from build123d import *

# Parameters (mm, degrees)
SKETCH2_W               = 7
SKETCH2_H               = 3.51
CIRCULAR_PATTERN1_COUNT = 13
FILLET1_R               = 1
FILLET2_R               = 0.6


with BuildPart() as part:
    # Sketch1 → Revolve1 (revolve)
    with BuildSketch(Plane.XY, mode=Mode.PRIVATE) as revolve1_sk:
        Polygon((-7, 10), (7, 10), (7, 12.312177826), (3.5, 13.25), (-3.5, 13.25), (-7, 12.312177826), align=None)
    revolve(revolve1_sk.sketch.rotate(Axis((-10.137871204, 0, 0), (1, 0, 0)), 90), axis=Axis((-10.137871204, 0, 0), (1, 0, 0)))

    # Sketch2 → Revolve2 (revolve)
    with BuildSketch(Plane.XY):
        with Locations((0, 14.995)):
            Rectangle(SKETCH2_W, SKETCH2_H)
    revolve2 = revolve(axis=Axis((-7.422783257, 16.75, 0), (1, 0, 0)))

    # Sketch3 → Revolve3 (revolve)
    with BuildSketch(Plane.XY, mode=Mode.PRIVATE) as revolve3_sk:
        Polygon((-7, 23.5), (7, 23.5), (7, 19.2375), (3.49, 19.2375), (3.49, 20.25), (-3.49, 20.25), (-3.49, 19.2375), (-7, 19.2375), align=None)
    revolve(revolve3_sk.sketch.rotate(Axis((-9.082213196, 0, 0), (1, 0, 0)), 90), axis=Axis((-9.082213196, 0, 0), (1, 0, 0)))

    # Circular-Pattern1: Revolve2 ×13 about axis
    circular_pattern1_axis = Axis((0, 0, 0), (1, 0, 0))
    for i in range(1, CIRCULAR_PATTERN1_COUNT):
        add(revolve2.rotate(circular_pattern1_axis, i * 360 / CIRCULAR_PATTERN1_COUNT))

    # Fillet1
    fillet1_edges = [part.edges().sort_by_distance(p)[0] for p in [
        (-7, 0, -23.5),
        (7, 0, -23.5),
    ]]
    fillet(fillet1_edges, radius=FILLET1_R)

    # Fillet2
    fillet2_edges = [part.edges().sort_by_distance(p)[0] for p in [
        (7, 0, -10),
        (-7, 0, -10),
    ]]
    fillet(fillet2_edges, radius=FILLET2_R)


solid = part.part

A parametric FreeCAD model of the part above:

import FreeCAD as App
import Part
import Sketcher
from FreeCAD import Vector
Q = App.Units.Quantity


def edges_at(feature, points):
    """Names of the edges that pass closest to the given points."""
    edges = feature.Shape.Edges
    near = lambda p: min(range(len(edges)), key=lambda i: edges[i].distToShape(Part.Vertex(*p))[0])
    return sorted({f"Edge{near(p) + 1}" for p in points})


def add_polygon(sketch, points):
    """Adds a closed chain of lines whose ends are joined by coincident constraints."""
    first, n = sketch.GeometryCount, len(points)
    for a, b in zip(points, points[1:] + points[:1]):
        sketch.addGeometry(Part.LineSegment(App.Vector(*a, 0), App.Vector(*b, 0)), False)
    for i in range(n):
        sketch.addConstraint(Sketcher.Constraint("Coincident", first + i, 2, first + (i + 1) % n, 1))

doc = App.newDocument("Part")
body = doc.addObject("PartDesign::Body", "Body")

# Sketch on XY plane
sketch1 = body.newObject("Sketcher::SketchObject", "Sketch")
sketch1.AttachmentSupport = (doc.getObject("XY_Plane"), [""])
sketch1.MapMode = "FlatFace"
add_polygon(sketch1, [(-7, 10), (7, 10), (7, 12.3), (3.5, 13.2), (-3.5, 13.2), (-7, 12.3)])  # lines 0-5
sketch1.addConstraint(Sketcher.Constraint("Horizontal", 0))
sketch1.addConstraint(Sketcher.Constraint("Vertical", 1))
sketch1.addConstraint(Sketcher.Constraint("Horizontal", 3))
sketch1.addConstraint(Sketcher.Constraint("Vertical", 5))
sketch1.addConstraint(Sketcher.Constraint("Symmetric", 1, 2, 4, 2, -2))
sketch1.addConstraint(Sketcher.Constraint("Equal", 2, 4))
sketch1.addConstraint(Sketcher.Constraint("DistanceX", 0, 1, 0, 2, 14.0))
sketch1.addConstraint(Sketcher.Constraint("DistanceX", 3, 2, 3, 1, 7.0))
sketch1.addConstraint(Sketcher.Constraint("Angle", 2, Q("165 deg")))
sketch1.addConstraint(Sketcher.Constraint("DistanceY", -1, 1, 0, 2, 10.0))
sketch1.addConstraint(Sketcher.Constraint("DistanceY", -1, 1, 2, 2, 13.25))
revolution = body.newObject("PartDesign::Revolution", "Revolution")
revolution.Profile = sketch1
revolution.ReferenceAxis = (sketch1, ["H_Axis"])
revolution.Angle = 360

# Sketch on XY plane
sketch2 = body.newObject("Sketcher::SketchObject", "Sketch001")
sketch2.AttachmentSupport = (doc.getObject("XY_Plane"), [""])
sketch2.MapMode = "FlatFace"
add_polygon(sketch2, [(-3.5, 16.8), (-3.5, 13.2), (3.5, 13.2), (3.5, 16.8)])  # lines 0-3
sketch2.addGeometry(Part.LineSegment(Vector(-3.5, 16.8, 0), Vector(3.5, 16.8, 0)), True)  # axis
sketch2.addConstraint(Sketcher.Constraint("Vertical", 0))
sketch2.addConstraint(Sketcher.Constraint("Horizontal", 1))
sketch2.addConstraint(Sketcher.Constraint("Vertical", 2))
sketch2.addConstraint(Sketcher.Constraint("Horizontal", 3))
sketch2.addConstraint(Sketcher.Constraint("Horizontal", 4))
sketch2.addConstraint(Sketcher.Constraint("Coincident", 4, 1, 3, 2))
sketch2.addConstraint(Sketcher.Constraint("Vertical", 1, 2, 4, 2))
sketch2.addConstraint(Sketcher.Constraint("DistanceX", 1, 1, 1, 2, 7.0))
sketch2.addConstraint(Sketcher.Constraint("DistanceY", 0, 2, 0, 1, 3.51))
sketch2.addConstraint(Sketcher.Constraint("DistanceX", 0, 2, -1, 1, 3.5))
sketch2.addConstraint(Sketcher.Constraint("DistanceY", -1, 1, 0, 2, 13.24))
revolution2 = body.newObject("PartDesign::Revolution", "Revolution001")
revolution2.Profile = sketch2
revolution2.ReferenceAxis = (sketch2, ["Axis0"])
revolution2.Angle = 360

# Sketch on XY plane
sketch3 = body.newObject("Sketcher::SketchObject", "Sketch002")
sketch3.AttachmentSupport = (doc.getObject("XY_Plane"), [""])
sketch3.MapMode = "FlatFace"
add_polygon(sketch3, [(7, 23.5), (-7, 23.5), (-7, 19.2), (-3.5, 19.2), (-3.5, 20.2), (3.5, 20.2), (3.5, 19.2), (7, 19.2)])  # lines 0-7
sketch3.addConstraint(Sketcher.Constraint("Horizontal", 0))
sketch3.addConstraint(Sketcher.Constraint("Vertical", 1))
sketch3.addConstraint(Sketcher.Constraint("Horizontal", 2))
sketch3.addConstraint(Sketcher.Constraint("Vertical", 3))
sketch3.addConstraint(Sketcher.Constraint("Horizontal", 4))
sketch3.addConstraint(Sketcher.Constraint("Vertical", 5))
sketch3.addConstraint(Sketcher.Constraint("Horizontal", 6))
sketch3.addConstraint(Sketcher.Constraint("Vertical", 7))
sketch3.addConstraint(Sketcher.Constraint("Symmetric", 2, 2, 5, 2, -2))
sketch3.addConstraint(Sketcher.Constraint("Equal", 2, 6))
sketch3.addConstraint(Sketcher.Constraint("DistanceX", 0, 2, 0, 1, 14.0))
sketch3.addConstraint(Sketcher.Constraint("DistanceX", 2, 1, 2, 2, 3.51))
sketch3.addConstraint(Sketcher.Constraint("DistanceY", -1, 1, 0, 2, 23.5))
sketch3.addConstraint(Sketcher.Constraint("DistanceY", -1, 1, 3, 2, 20.25))
sketch3.addConstraint(Sketcher.Constraint("DistanceY", 1, 2, 1, 1, 4.2625))
revolution3 = body.newObject("PartDesign::Revolution", "Revolution002")
revolution3.Profile = sketch3
revolution3.ReferenceAxis = (sketch3, ["H_Axis"])
revolution3.Angle = 360
doc.recompute()

polarpattern = body.newObject("PartDesign::PolarPattern", "PolarPattern")
polarpattern.Originals = [revolution2]
polarpattern.Axis = (doc.getObject("X_Axis"), [""])
polarpattern.Angle = 360
polarpattern.Occurrences = 13
body.Tip = polarpattern
doc.recompute()

fillet = body.newObject("PartDesign::Fillet", "Fillet")
fillet.Base = (polarpattern, edges_at(polarpattern, [(-7, 0, -23.5), (7, 0, -23.5)]))
fillet.Radius = 1
doc.recompute()

fillet2 = body.newObject("PartDesign::Fillet", "Fillet001")
fillet2.Base = (fillet, edges_at(fillet, [(7, 0, -10), (-7, 0, -10)]))
fillet2.Radius = 0.6

doc.recompute()
